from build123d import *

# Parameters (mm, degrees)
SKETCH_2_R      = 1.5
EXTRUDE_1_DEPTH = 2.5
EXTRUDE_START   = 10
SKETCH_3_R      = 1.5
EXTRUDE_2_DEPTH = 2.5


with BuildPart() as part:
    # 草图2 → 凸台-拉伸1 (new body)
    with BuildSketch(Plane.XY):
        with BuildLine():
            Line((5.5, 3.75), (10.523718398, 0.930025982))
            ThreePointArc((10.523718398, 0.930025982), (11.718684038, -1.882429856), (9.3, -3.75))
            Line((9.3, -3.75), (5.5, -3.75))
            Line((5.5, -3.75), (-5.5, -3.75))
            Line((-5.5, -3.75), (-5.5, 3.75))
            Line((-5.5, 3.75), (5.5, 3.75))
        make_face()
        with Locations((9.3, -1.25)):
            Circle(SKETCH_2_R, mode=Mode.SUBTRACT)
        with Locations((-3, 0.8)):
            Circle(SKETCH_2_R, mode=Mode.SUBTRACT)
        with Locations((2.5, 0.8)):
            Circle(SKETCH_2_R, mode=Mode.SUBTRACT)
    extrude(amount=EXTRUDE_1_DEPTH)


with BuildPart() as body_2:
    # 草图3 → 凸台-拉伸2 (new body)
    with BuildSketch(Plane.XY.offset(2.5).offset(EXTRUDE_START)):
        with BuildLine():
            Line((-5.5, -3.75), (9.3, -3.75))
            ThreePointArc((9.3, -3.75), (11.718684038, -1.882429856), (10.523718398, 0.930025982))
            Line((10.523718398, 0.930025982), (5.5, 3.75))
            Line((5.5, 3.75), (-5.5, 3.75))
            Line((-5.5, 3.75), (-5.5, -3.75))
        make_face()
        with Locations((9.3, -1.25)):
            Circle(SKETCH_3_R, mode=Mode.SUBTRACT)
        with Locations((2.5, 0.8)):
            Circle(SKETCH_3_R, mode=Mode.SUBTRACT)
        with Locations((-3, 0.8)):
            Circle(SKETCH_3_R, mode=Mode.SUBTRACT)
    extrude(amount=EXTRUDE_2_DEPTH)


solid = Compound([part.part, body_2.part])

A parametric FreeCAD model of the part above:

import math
import FreeCAD as App
import Part
import Sketcher
from FreeCAD import Vector
Q = App.Units.Quantity

doc = App.newDocument("Part")
params = doc.addObject("Spreadsheet::Sheet", "Params")
for row, (alias, value) in enumerate([
    ("sketch1_diameter", "3 mm"),
    ("sketch1_radius", "2.5 mm"),
    ("sketch1_width", "11 mm"),
    ("sketch1_width2", "14.8 mm"),
    ("sketch1_height", "7.5 mm"),
    ("pad1_length", "2.5 mm"),
    ("sketch2_diameter", "3 mm"),
    ("sketch2_radius", "2.5 mm"),
    ("sketch2_width", "11 mm"),
    ("sketch2_width2", "14.8 mm"),
    ("sketch2_height", "7.5 mm"),
    ("pad2_length", "2.5 mm"),
], start=1):
    params.set(f"A{row}", alias)
    params.set(f"B{row}", "=" + value)
    params.setAlias(f"B{row}", alias)

body = doc.addObject("PartDesign::Body", "Body")

# Sketch on XY plane
sketch1 = body.newObject("Sketcher::SketchObject", "Sketch")
sketch1.AttachmentSupport = (doc.getObject("XY_Plane"), [""])
sketch1.MapMode = "FlatFace"
sketch1.addGeometry([
    Part.LineSegment(Vector(10.523718, 0.930026, 0), Vector(5.5, 3.75, 0)),  # 0
    Part.LineSegment(Vector(5.5, 3.75, 0), Vector(-5.5, 3.75, 0)),  # 1
    Part.LineSegment(Vector(-5.5, 3.75, 0), Vector(-5.5, -3.75, 0)),  # 2
    Part.LineSegment(Vector(-5.5, -3.75, 0), Vector(9.3, -3.75, 0)),  # 3
    Part.ArcOfCircle(Part.Circle(Vector(9.3, -1.25, 0), Vector(0, 0, 1), 2.5), math.radians(-90), math.radians(60.693107)),  # 4
    Part.Circle(Vector(9.3, -1.25, 0), Vector(0, 0, 1), 1.5),  # 5
    Part.Circle(Vector(2.5, 0.8, 0), Vector(0, 0, 1), 1.5),  # 6
    Part.Circle(Vector(-3, 0.8, 0), Vector(0, 0, 1), 1.5),  # 7
], False)
sketch1.addConstraint([
    Sketcher.Constraint("Coincident", 0, 2, 1, 1),
    Sketcher.Constraint("Coincident", 1, 2, 2, 1),
    Sketcher.Constraint("Coincident", 2, 2, 3, 1),
    Sketcher.Constraint("Tangent", 3, 2, 4, 1),
    Sketcher.Constraint("Tangent", 4, 2, 0, 1),
    Sketcher.Constraint("Horizontal", 1),
    Sketcher.Constraint("Vertical", 2),
    Sketcher.Constraint("Horizontal", 3),
    Sketcher.Constraint("Coincident", 5, 3, 4, 3),
    Sketcher.Constraint("Equal", 5, 6),
    Sketcher.Constraint("Equal", 6, 7),
    Sketcher.Constraint("Symmetric", 0, 2, 2, 2, -1, 1),
    Sketcher.Constraint("Horizontal", 6, 3, 7, 3),
    Sketcher.Constraint("Diameter", 5, Q("3 mm")),
    Sketcher.Constraint("Radius", 4, Q("2.5 mm")),
    Sketcher.Constraint("DistanceX", 1, 2, 1, 1, Q("11 mm")),
    Sketcher.Constraint("DistanceX", 3, 1, 3, 2, Q("14.8 mm")),
    Sketcher.Constraint("DistanceY", 2, 2, 2, 1, Q("7.5 mm")),
    Sketcher.Constraint("DistanceX", 7, 3, -1, 1, Q("3 mm")),
    Sketcher.Constraint("DistanceX", 6, 3, 0, 2, Q("3 mm")),
    Sketcher.Constraint("DistanceY", -1, 1, 6, 3, Q("0.8 mm")),
])
sketch1.setExpression("Constraints[13]", "Params.sketch1_diameter")
sketch1.setExpression("Constraints[14]", "Params.sketch1_radius")
sketch1.setExpression("Constraints[15]", "Params.sketch1_width")
sketch1.setExpression("Constraints[16]", "Params.sketch1_width2")
sketch1.setExpression("Constraints[17]", "Params.sketch1_height")
pad1 = body.newObject("PartDesign::Pad", "Pad")
pad1.Profile = sketch1
pad1.setExpression("Length", "Params.pad1_length")
body2 = doc.addObject("PartDesign::Body", "Body001")

# Sketch on XY plane
sketch2 = body2.newObject("Sketcher::SketchObject", "Sketch001")
sketch2.AttachmentSupport = (doc.getObject("XY_Plane001"), [""])
sketch2.MapMode = "FlatFace"
sketch2.AttachmentOffset = App.Placement(Vector(0, 0, 12.5), App.Rotation())
sketch2.addGeometry([
    Part.LineSegment(Vector(-5.5, -3.75, 0), Vector(9.3, -3.75, 0)),  # 0
    Part.ArcOfCircle(Part.Circle(Vector(9.3, -1.25, 0), Vector(0, 0, 1), 2.5), math.radians(-90), math.radians(60.693107)),  # 1
    Part.LineSegment(Vector(10.523718, 0.930026, 0), Vector(5.5, 3.75, 0)),  # 2
    Part.LineSegment(Vector(5.5, 3.75, 0), Vector(-5.5, 3.75, 0)),  # 3
    Part.LineSegment(Vector(-5.5, 3.75, 0), Vector(-5.5, -3.75, 0)),  # 4
    Part.Circle(Vector(9.3, -1.25, 0), Vector(0, 0, 1), 1.5),  # 5
    Part.Circle(Vector(-3, 0.8, 0), Vector(0, 0, 1), 1.5),  # 6
    Part.Circle(Vector(2.5, 0.8, 0), Vector(0, 0, 1), 1.5),  # 7
], False)
sketch2.addConstraint([
    Sketcher.Constraint("Tangent", 0, 2, 1, 1),
    Sketcher.Constraint("Tangent", 1, 2, 2, 1),
    Sketcher.Constraint("Coincident", 2, 2, 3, 1),
    Sketcher.Constraint("Coincident", 3, 2, 4, 1),
    Sketcher.Constraint("Coincident", 4, 2, 0, 1),
    Sketcher.Constraint("Horizontal", 0),
    Sketcher.Constraint("Horizontal", 3),
    Sketcher.Constraint("Vertical", 4),
    Sketcher.Constraint("Coincident", 5, 3, 1, 3),
    Sketcher.Constraint("Equal", 5, 6),
    Sketcher.Constraint("Equal", 6, 7),
    Sketcher.Constraint("Symmetric", 2, 2, 4, 2, -1, 1),
    Sketcher.Constraint("Horizontal", 6, 3, 7, 3),
    Sketcher.Constraint("Diameter", 5, Q("3 mm")),
    Sketcher.Constraint("Radius", 1, Q("2.5 mm")),
    Sketcher.Constraint("DistanceX", 3, 2, 3, 1, Q("11 mm")),
    Sketcher.Constraint("DistanceX", 0, 1, 0, 2, Q("14.8 mm")),
    Sketcher.Constraint("DistanceY", 4, 2, 4, 1, Q("7.5 mm")),
    Sketcher.Constraint("DistanceX", 6, 3, -1, 1, Q("3 mm")),
    Sketcher.Constraint("DistanceX", 7, 3, 2, 2, Q("3 mm")),
    Sketcher.Constraint("DistanceY", -1, 1, 6, 3, Q("0.8 mm")),
])
sketch2.setExpression("Constraints[13]", "Params.sketch2_diameter")
sketch2.setExpression("Constraints[14]", "Params.sketch2_radius")
sketch2.setExpression("Constraints[15]", "Params.sketch2_width")
sketch2.setExpression("Constraints[16]", "Params.sketch2_width2")
sketch2.setExpression("Constraints[17]", "Params.sketch2_height")
pad2 = body2.newObject("PartDesign::Pad", "Pad001")
pad2.Profile = sketch2
pad2.setExpression("Length", "Params.pad2_length")

doc.recompute()
